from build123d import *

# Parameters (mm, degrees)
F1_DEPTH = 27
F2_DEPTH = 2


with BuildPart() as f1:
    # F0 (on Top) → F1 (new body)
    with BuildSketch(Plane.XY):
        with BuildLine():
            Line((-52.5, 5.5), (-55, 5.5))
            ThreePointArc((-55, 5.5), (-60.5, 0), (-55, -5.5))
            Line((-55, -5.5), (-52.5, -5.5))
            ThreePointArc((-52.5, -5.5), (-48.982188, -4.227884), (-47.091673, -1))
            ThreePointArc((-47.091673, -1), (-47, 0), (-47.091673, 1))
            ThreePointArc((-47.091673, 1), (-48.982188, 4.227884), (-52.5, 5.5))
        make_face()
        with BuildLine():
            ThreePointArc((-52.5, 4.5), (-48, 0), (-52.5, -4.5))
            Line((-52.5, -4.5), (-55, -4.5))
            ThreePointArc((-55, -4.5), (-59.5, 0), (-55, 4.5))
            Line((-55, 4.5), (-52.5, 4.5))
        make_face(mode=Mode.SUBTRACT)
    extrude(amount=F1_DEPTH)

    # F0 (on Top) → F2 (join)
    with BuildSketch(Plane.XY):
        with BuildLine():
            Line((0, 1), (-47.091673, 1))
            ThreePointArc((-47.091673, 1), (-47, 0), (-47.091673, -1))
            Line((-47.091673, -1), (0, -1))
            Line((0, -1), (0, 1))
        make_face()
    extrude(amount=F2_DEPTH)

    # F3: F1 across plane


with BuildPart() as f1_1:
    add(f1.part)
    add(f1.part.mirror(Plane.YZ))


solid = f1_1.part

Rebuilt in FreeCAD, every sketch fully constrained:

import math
import FreeCAD as App
import Part
import Sketcher

V = App.Vector

doc = App.newDocument("Part")
body = doc.addObject("PartDesign::Body", "Body")

# Sketch on XY plane
sketch1 = doc.addObject("Sketcher::SketchObject", "Sketch")
body.addObject(sketch1)
sketch1.AttachmentSupport = (doc.XY_Plane, [""])
sketch1.MapMode = "FlatFace"
sketch1.addGeometry(Part.LineSegment(V(-52.5, 5.5, 0), V(-55, 5.5, 0)), False)
sketch1.addGeometry(Part.ArcOfCircle(Part.Circle(V(-55, 0, 0), V(0, 0, 1), 5.5), math.radians(90), math.radians(270)), False)
sketch1.addGeometry(Part.LineSegment(V(-55, -5.5, 0), V(-52.5, -5.5, 0)), False)
sketch1.addGeometry(Part.ArcOfCircle(Part.Circle(V(-52.5, 0, 0), V(0, 0, 1), 5.5), math.radians(-90), math.radians(-10)), False)
sketch1.addGeometry(Part.ArcOfCircle(Part.Circle(V(-52.5, 0, 0), V(0, 0, 1), 5.5), math.radians(-10), math.radians(10)), False)
sketch1.addGeometry(Part.ArcOfCircle(Part.Circle(V(-52.5, 0, 0), V(0, 0, 1), 5.5), math.radians(10), math.radians(90)), False)
sketch1.addGeometry(Part.LineSegment(V(-55, 4.5, 0), V(-52.5, 4.5, 0)), False)
sketch1.addGeometry(Part.ArcOfCircle(Part.Circle(V(-52.5, 0, 0), V(0, 0, 1), 4.5), math.radians(-90), math.radians(90)), False)
sketch1.addGeometry(Part.LineSegment(V(-52.5, -4.5, 0), V(-55, -4.5, 0)), False)
sketch1.addGeometry(Part.ArcOfCircle(Part.Circle(V(-55, 0, 0), V(0, 0, 1), 4.5), math.radians(90), math.radians(270)), False)
sketch1.addConstraint(Sketcher.Constraint("Tangent", 0, 2, 1, 1))
sketch1.addConstraint(Sketcher.Constraint("Tangent", 1, 2, 2, 1))
sketch1.addConstraint(Sketcher.Constraint("Tangent", 2, 2, 3, 1))
sketch1.addConstraint(Sketcher.Constraint("Tangent", 3, 2, 4, 1))
sketch1.addConstraint(Sketcher.Constraint("Tangent", 4, 2, 5, 1))
sketch1.addConstraint(Sketcher.Constraint("Tangent", 5, 2, 0, 1))
sketch1.addConstraint(Sketcher.Constraint("Tangent", 6, 2, 7, 2))
sketch1.addConstraint(Sketcher.Constraint("Tangent", 7, 1, 8, 1))
sketch1.addConstraint(Sketcher.Constraint("Tangent", 8, 2, 9, 2))
sketch1.addConstraint(Sketcher.Constraint("Tangent", 9, 1, 6, 1))
sketch1.addConstraint(Sketcher.Constraint("Horizontal", 0))
sketch1.addConstraint(Sketcher.Constraint("Horizontal", 2))
sketch1.addConstraint(Sketcher.Constraint("Horizontal", 6))
sketch1.addConstraint(Sketcher.Constraint("Horizontal", 8))
sketch1.addConstraint(Sketcher.Constraint("Coincident", 5, 3, 3, 3))
sketch1.addConstraint(Sketcher.Constraint("Coincident", 7, 3, 3, 3))
sketch1.addConstraint(Sketcher.Constraint("Symmetric", 3, 2, 4, 2, -1))
sketch1.addConstraint(Sketcher.Constraint("Vertical", 9, 3, 0, 2))
sketch1.addConstraint(Sketcher.Constraint("Radius", 1, 5.5))
sketch1.addConstraint(Sketcher.Constraint("Radius", 7, 4.5))
sketch1.addConstraint(Sketcher.Constraint("DistanceX", 0, 2, 0, 1, 2.5))
sketch1.addConstraint(Sketcher.Constraint("DistanceX", 1, 3, -1, 1, 55.0))
sketch1.addConstraint(Sketcher.Constraint("DistanceY", 3, 2, -1, 1, 1.0))
pad1 = doc.addObject("PartDesign::Pad", "Pad")
body.addObject(pad1)
pad1.Profile = sketch1
pad1.Length = 27

# Sketch on XY plane
sketch2 = doc.addObject("Sketcher::SketchObject", "Sketch001")
body.addObject(sketch2)
sketch2.AttachmentSupport = (doc.XY_Plane, [""])
sketch2.MapMode = "FlatFace"
sketch2.addGeometry(Part.LineSegment(V(0, 1, 0), V(-47.1, 1, 0)), False)
sketch2.addGeometry(Part.ArcOfCircle(Part.Circle(V(-52.5, 0, 0), V(0, 0, 1), 5.5), math.radians(-10), math.radians(10)), False)
sketch2.addGeometry(Part.LineSegment(V(-47.1, -1, 0), V(0, -1, 0)), False)
sketch2.addGeometry(Part.LineSegment(V(0, -1, 0), V(0, 1, 0)), False)
sketch2.addConstraint(Sketcher.Constraint("Coincident", 0, 2, 1, 2))
sketch2.addConstraint(Sketcher.Constraint("Coincident", 1, 1, 2, 1))
sketch2.addConstraint(Sketcher.Constraint("Coincident", 2, 2, 3, 1))
sketch2.addConstraint(Sketcher.Constraint("Coincident", 3, 2, 0, 1))
sketch2.addConstraint(Sketcher.Constraint("Horizontal", 0))
sketch2.addConstraint(Sketcher.Constraint("Horizontal", 2))
sketch2.addConstraint(Sketcher.Constraint("Vertical", 3))
sketch2.addConstraint(Sketcher.Constraint("Symmetric", 2, 2, 3, 2, -1, 1))
sketch2.addConstraint(Sketcher.Constraint("PointOnObject", 1, 3, -1))
sketch2.addConstraint(Sketcher.Constraint("DistanceY", 3, 1, 3, 2, 2.0))
sketch2.addConstraint(Sketcher.Constraint("Radius", 1, 5.500005))
sketch2.addConstraint(Sketcher.Constraint("DistanceX", 0, 2, 0, 1, 47.091673))
pad2 = doc.addObject("PartDesign::Pad", "Pad001")
body.addObject(pad2)
pad2.Profile = sketch2
pad2.Length = 2
body2 = doc.addObject("PartDesign::Body", "Body001")
doc.recompute()

body2.BaseFeature = body
doc.recompute()

mirroring = doc.addObject("Part::Mirroring", "Mirroring")
mirroring.Source = body
mirroring.Base = V(0, 0, 0)
mirroring.Normal = V(1, 0, 0)
body3 = doc.addObject("PartDesign::Body", "Body002")
body3.BaseFeature = mirroring
boolean = doc.addObject("PartDesign::Boolean", "Boolean")
body2.addObject(boolean)
boolean.Type = "Fuse"
boolean.addObjects([body3])
doc.recompute()
mirroring.Visibility = False

doc.recompute()
